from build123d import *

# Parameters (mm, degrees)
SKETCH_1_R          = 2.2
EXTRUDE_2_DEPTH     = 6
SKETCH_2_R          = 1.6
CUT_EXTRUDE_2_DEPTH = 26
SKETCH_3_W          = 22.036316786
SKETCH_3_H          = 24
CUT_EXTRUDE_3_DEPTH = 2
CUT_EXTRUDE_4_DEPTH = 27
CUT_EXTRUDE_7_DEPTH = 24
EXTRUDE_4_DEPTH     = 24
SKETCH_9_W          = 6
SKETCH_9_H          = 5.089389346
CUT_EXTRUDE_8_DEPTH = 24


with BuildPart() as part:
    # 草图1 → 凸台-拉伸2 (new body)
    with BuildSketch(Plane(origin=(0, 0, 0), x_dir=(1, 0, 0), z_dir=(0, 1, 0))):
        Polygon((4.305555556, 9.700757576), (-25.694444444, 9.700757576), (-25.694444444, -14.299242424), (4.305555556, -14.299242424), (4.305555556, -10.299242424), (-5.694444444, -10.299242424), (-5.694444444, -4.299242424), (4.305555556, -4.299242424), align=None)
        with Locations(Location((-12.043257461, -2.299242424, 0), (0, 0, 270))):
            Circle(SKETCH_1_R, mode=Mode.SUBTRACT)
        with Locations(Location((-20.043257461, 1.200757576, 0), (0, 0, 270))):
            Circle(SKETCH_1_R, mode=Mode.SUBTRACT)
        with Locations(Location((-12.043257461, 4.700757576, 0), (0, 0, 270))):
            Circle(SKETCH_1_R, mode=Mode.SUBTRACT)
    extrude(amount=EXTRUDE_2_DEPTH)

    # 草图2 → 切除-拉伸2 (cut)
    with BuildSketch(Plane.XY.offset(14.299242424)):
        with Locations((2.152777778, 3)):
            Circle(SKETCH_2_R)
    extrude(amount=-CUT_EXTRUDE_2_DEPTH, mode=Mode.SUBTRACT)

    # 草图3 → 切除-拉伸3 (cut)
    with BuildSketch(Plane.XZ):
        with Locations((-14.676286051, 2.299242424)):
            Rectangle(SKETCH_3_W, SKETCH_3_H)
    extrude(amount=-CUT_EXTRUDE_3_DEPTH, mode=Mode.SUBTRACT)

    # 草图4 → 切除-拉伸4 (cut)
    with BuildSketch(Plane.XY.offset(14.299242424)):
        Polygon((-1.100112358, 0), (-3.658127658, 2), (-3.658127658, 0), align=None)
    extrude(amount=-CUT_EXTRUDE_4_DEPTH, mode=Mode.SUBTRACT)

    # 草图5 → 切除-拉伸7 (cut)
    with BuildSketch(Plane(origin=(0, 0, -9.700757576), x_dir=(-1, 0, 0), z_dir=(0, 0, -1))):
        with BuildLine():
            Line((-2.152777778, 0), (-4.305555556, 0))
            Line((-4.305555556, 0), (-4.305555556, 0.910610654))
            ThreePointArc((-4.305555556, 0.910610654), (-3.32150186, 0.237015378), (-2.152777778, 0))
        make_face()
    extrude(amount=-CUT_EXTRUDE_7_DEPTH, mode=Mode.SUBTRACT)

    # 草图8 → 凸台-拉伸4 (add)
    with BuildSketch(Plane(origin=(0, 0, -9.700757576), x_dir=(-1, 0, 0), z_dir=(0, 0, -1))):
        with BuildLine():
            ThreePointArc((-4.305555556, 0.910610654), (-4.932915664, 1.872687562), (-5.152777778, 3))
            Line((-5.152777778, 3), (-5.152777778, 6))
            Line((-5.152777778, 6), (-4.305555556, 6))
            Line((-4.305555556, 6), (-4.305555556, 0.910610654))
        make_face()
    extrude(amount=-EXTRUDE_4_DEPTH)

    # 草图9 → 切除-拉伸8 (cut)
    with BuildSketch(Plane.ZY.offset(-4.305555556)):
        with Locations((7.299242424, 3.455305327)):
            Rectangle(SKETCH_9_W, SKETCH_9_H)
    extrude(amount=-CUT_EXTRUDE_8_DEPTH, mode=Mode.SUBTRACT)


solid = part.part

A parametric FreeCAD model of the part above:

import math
import FreeCAD as App
import Part
import Sketcher
from FreeCAD import Vector

doc = App.newDocument("Part")
body = doc.addObject("PartDesign::Body", "Body")

sketch1 = doc.addObject("Sketcher::SketchObject", "Sketch")
body.addObject(sketch1)
sketch1.AttachmentSupport = (doc.XZ_Plane, [""])
sketch1.MapMode = "FlatFace"
sketch1.addGeometry([
    Part.LineSegment(Vector(4.3, -9.7, 0), Vector(-25.7, -9.7, 0)),
    Part.LineSegment(Vector(-25.7, -9.7, 0), Vector(-25.7, 14.3, 0)),
    Part.LineSegment(Vector(-25.7, 14.3, 0), Vector(4.3, 14.3, 0)),
    Part.LineSegment(Vector(4.3, 14.3, 0), Vector(4.3, 10.3, 0)),
    Part.LineSegment(Vector(4.3, 10.3, 0), Vector(-5.7, 10.3, 0)),
    Part.LineSegment(Vector(-5.7, 10.3, 0), Vector(-5.7, 4.3, 0)),
    Part.LineSegment(Vector(-5.7, 4.3, 0), Vector(4.3, 4.3, 0)),
    Part.LineSegment(Vector(4.3, 4.3, 0), Vector(4.3, -9.7, 0)),
    Part.Circle(Vector(-12, 2.3, 0), Vector(0, 0, 1), 2.2),
    Part.Circle(Vector(-20, -1.2, 0), Vector(0, 0, 1), 2.2),
    Part.Circle(Vector(-12, -4.7, 0), Vector(0, 0, 1), 2.2),
], False)
sketch1.addConstraint([
    Sketcher.Constraint("Coincident", 0, 2, 1, 1),
    Sketcher.Constraint("Coincident", 1, 2, 2, 1),
    Sketcher.Constraint("Coincident", 2, 2, 3, 1),
    Sketcher.Constraint("Coincident", 3, 2, 4, 1),
    Sketcher.Constraint("Coincident", 4, 2, 5, 1),
    Sketcher.Constraint("Coincident", 5, 2, 6, 1),
    Sketcher.Constraint("Coincident", 6, 2, 7, 1),
    Sketcher.Constraint("Coincident", 7, 2, 0, 1),
    Sketcher.Constraint("Horizontal", 0),
    Sketcher.Constraint("Vertical", 1),
    Sketcher.Constraint("Horizontal", 2),
    Sketcher.Constraint("Vertical", 3),
    Sketcher.Constraint("Horizontal", 4),
    Sketcher.Constraint("Vertical", 5),
    Sketcher.Constraint("Horizontal", 6),
    Sketcher.Constraint("Vertical", 7),
    Sketcher.Constraint("Equal", 8, 9),
    Sketcher.Constraint("Equal", 9, 10),
    Sketcher.Constraint("Vertical", 8, 3, 10, 3),
    Sketcher.Constraint("Vertical", 3, 2, 6, 2),
    Sketcher.Constraint("Diameter", 8, 4.4),
    Sketcher.Constraint("DistanceX", 0, 2, 0, 1, 30.0),
    Sketcher.Constraint("DistanceX", 4, 2, 4, 1, 10.0),
    Sketcher.Constraint("DistanceY", 1, 1, 1, 2, 24.0),
    Sketcher.Constraint("DistanceY", 3, 2, 3, 1, 4.0),
    Sketcher.Constraint("DistanceY", 5, 2, 5, 1, 6.0),
    Sketcher.Constraint("DistanceX", 9, 3, 8, 3, 8.0),
    Sketcher.Constraint("DistanceY", 10, 3, 8, 3, 7.0),
    Sketcher.Constraint("DistanceY", 0, 2, 10, 3, 5.0),
    Sketcher.Constraint("DistanceY", 9, 3, 8, 3, 3.5),
    Sketcher.Constraint("DistanceX", 8, 3, -1, 1, 12.043257),
    Sketcher.Constraint("DistanceY", -1, 1, 8, 3, 2.299242),
    Sketcher.Constraint("DistanceX", 0, 2, -1, 1, 25.694444),
])
pad1 = doc.addObject("PartDesign::Pad", "Pad")
body.addObject(pad1)
pad1.Profile = sketch1
pad1.Length = 6
pad1.Reversed = True

sketch2 = doc.addObject("Sketcher::SketchObject", "Sketch001")
body.addObject(sketch2)
sketch2.AttachmentSupport = (doc.XY_Plane, [""])
sketch2.MapMode = "FlatFace"
sketch2.AttachmentOffset = App.Placement(Vector(0, 0, 14.299242), App.Rotation())
sketch2.addGeometry(Part.Circle(Vector(2.2, 3, 0), Vector(0, 0, 1), 1.6), False)
sketch2.addConstraint([
    Sketcher.Constraint("Diameter", 0, 3.2),
    Sketcher.Constraint("DistanceY", -1, 1, 0, 3, 3.0),
    Sketcher.Constraint("DistanceX", -1, 1, 0, 3, 2.152778),
])
pocket1 = doc.addObject("PartDesign::Pocket", "Pocket")
body.addObject(pocket1)
pocket1.Profile = sketch2
pocket1.Length = 26

sketch3 = doc.addObject("Sketcher::SketchObject", "Sketch002")
body.addObject(sketch3)
sketch3.AttachmentSupport = (doc.XZ_Plane, [""])
sketch3.MapMode = "FlatFace"
sketch3.addGeometry([
    Part.LineSegment(Vector(-26, 14, 0), Vector(-26, -10, 0)),
    Part.LineSegment(Vector(-26, -10, 0), Vector(-4, -10, 0)),
    Part.LineSegment(Vector(-4, -10, 0), Vector(-4, 14, 0)),
    Part.LineSegment(Vector(-4, 14, 0), Vector(-26, 14, 0)),
], False)
sketch3.addConstraint([
    Sketcher.Constraint("Coincident", 0, 2, 1, 1),
    Sketcher.Constraint("Coincident", 1, 2, 2, 1),
    Sketcher.Constraint("Coincident", 2, 2, 3, 1),
    Sketcher.Constraint("Coincident", 3, 2, 0, 1),
    Sketcher.Constraint("Vertical", 0),
    Sketcher.Constraint("Horizontal", 1),
    Sketcher.Constraint("Vertical", 2),
    Sketcher.Constraint("Horizontal", 3),
    Sketcher.Constraint("DistanceY", 0, 2, 0, 1, 24.0),
    Sketcher.Constraint("DistanceX", 1, 1, 1, 2, 22.036317),
    Sketcher.Constraint("DistanceX", 0, 2, -1, 1, 25.694444),
    Sketcher.Constraint("DistanceY", 0, 2, -1, 1, 9.700758),
])
pocket2 = doc.addObject("PartDesign::Pocket", "Pocket001")
body.addObject(pocket2)
pocket2.Profile = sketch3
pocket2.Length = 2

sketch4 = doc.addObject("Sketcher::SketchObject", "Sketch003")
body.addObject(sketch4)
sketch4.AttachmentSupport = (doc.XY_Plane, [""])
sketch4.MapMode = "FlatFace"
sketch4.AttachmentOffset = App.Placement(Vector(0, 0, 14.299242), App.Rotation())
sketch4.addGeometry([
    Part.LineSegment(Vector(-1.1, 0, 0), Vector(-3.7, 2, 0)),
    Part.LineSegment(Vector(-3.7, 2, 0), Vector(-3.7, 0, 0)),
    Part.LineSegment(Vector(-3.7, 0, 0), Vector(-1.1, 0, 0)),
], False)
sketch4.addConstraint([
    Sketcher.Constraint("Coincident", 0, 2, 1, 1),
    Sketcher.Constraint("Coincident", 1, 2, 2, 1),
    Sketcher.Constraint("Coincident", 2, 2, 0, 1),
    Sketcher.Constraint("Vertical", 1),
    Sketcher.Constraint("Horizontal", 2),
    Sketcher.Constraint("PointOnObject", 1, 2, -1),
    Sketcher.Constraint("DistanceY", 1, 2, 1, 1, 2.0),
    Sketcher.Constraint("DistanceX", 2, 1, 2, 2, 2.558015),
    Sketcher.Constraint("DistanceX", 0, 2, -1, 1, 3.658128),
])
pocket3 = doc.addObject("PartDesign::Pocket", "Pocket002")
body.addObject(pocket3)
pocket3.Profile = sketch4
pocket3.Length = 27

sketch5 = doc.addObject("Sketcher::SketchObject", "Sketch004")
body.addObject(sketch5)
sketch5.AttachmentSupport = (doc.XY_Plane, [""])
sketch5.MapMode = "FlatFace"
sketch5.AttachmentOffset = App.Placement(Vector(0, 0, -9.700758), App.Rotation())
sketch5.addGeometry([
    Part.LineSegment(Vector(4.3, 0, 0), Vector(2.2, 0, 0)),
    Part.ArcOfCircle(Part.Circle(Vector(2.2, 3, 0), Vector(0, 0, 1), 3), math.radians(-90), math.radians(-44)),
    Part.LineSegment(Vector(4.3, 0.9, 0), Vector(4.3, 0, 0)),
], False)
sketch5.addConstraint([
    Sketcher.Constraint("Tangent", 0, 2, 1, 1),
    Sketcher.Constraint("Coincident", 1, 2, 2, 1),
    Sketcher.Constraint("Coincident", 2, 2, 0, 1),
    Sketcher.Constraint("Horizontal", 0),
    Sketcher.Constraint("Vertical", 2),
    Sketcher.Constraint("PointOnObject", 0, 2, -1),
    Sketcher.Constraint("Radius", 1, 3.0),
    Sketcher.Constraint("DistanceY", 2, 2, 2, 1, 0.910611),
    Sketcher.Constraint("DistanceX", -1, 1, 1, 3, 2.152778),
])
pocket4 = doc.addObject("PartDesign::Pocket", "Pocket003")
body.addObject(pocket4)
pocket4.Profile = sketch5
pocket4.Length = 24
pocket4.Reversed = True

sketch6 = doc.addObject("Sketcher::SketchObject", "Sketch005")
body.addObject(sketch6)
sketch6.AttachmentSupport = (doc.XY_Plane, [""])
sketch6.MapMode = "FlatFace"
sketch6.AttachmentOffset = App.Placement(Vector(0, 0, -9.700758), App.Rotation())
sketch6.addGeometry([
    Part.ArcOfCircle(Part.Circle(Vector(2.2, 3, 0), Vector(0, 0, 1), 3), math.radians(-44), math.radians(0)),
    Part.LineSegment(Vector(4.3, 0.9, 0), Vector(4.3, 6, 0)),
    Part.LineSegment(Vector(4.3, 6, 0), Vector(5.2, 6, 0)),
    Part.LineSegment(Vector(5.2, 6, 0), Vector(5.2, 3, 0)),
], False)
sketch6.addConstraint([
    Sketcher.Constraint("Coincident", 0, 1, 1, 1),
    Sketcher.Constraint("Coincident", 1, 2, 2, 1),
    Sketcher.Constraint("Coincident", 2, 2, 3, 1),
    Sketcher.Constraint("Tangent", 3, 2, 0, 2),
    Sketcher.Constraint("Vertical", 1),
    Sketcher.Constraint("Horizontal", 2),
    Sketcher.Constraint("Vertical", 3),
    Sketcher.Constraint("Radius", 0, 3.0),
    Sketcher.Constraint("DistanceY", 3, 2, 3, 1, 3.0),
    Sketcher.Constraint("DistanceY", -1, 1, 0, 3, 3.0),
    Sketcher.Constraint("DistanceY", 1, 1, 1, 2, 5.089389),
    Sketcher.Constraint("DistanceX", -1, 1, 0, 3, 2.152778),
])
pad2 = doc.addObject("PartDesign::Pad", "Pad001")
body.addObject(pad2)
pad2.Profile = sketch6
pad2.Length = 24

sketch7 = doc.addObject("Sketcher::SketchObject", "Sketch006")
body.addObject(sketch7)
sketch7.AttachmentSupport = (doc.YZ_Plane, [""])
sketch7.MapMode = "FlatFace"
sketch7.AttachmentOffset = App.Placement(Vector(0, 0, 4.305556), App.Rotation())
sketch7.addGeometry([
    Part.LineSegment(Vector(6, 4, 0), Vector(1, 4, 0)),
    Part.LineSegment(Vector(1, 4, 0), Vector(1, 10, 0)),
    Part.LineSegment(Vector(1, 10, 0), Vector(6, 10, 0)),
    Part.LineSegment(Vector(6, 10, 0), Vector(6, 4, 0)),
], False)
sketch7.addConstraint([
    Sketcher.Constraint("Coincident", 0, 2, 1, 1),
    Sketcher.Constraint("Coincident", 1, 2, 2, 1),
    Sketcher.Constraint("Coincident", 2, 2, 3, 1),
    Sketcher.Constraint("Coincident", 3, 2, 0, 1),
    Sketcher.Constraint("Horizontal", 0),
    Sketcher.Constraint("Vertical", 1),
    Sketcher.Constraint("Horizontal", 2),
    Sketcher.Constraint("Vertical", 3),
    Sketcher.Constraint("DistanceY", 1, 1, 1, 2, 6.0),
    Sketcher.Constraint("DistanceX", -1, 1, 2, 2, 6.0),
    Sketcher.Constraint("DistanceX", 0, 2, 0, 1, 5.089389),
    Sketcher.Constraint("DistanceY", -1, 1, 0, 2, 4.299242),
])
pocket5 = doc.addObject("PartDesign::Pocket", "Pocket004")
body.addObject(pocket5)
pocket5.Profile = sketch7
pocket5.Length = 24
pocket5.Reversed = True

doc.recompute()
